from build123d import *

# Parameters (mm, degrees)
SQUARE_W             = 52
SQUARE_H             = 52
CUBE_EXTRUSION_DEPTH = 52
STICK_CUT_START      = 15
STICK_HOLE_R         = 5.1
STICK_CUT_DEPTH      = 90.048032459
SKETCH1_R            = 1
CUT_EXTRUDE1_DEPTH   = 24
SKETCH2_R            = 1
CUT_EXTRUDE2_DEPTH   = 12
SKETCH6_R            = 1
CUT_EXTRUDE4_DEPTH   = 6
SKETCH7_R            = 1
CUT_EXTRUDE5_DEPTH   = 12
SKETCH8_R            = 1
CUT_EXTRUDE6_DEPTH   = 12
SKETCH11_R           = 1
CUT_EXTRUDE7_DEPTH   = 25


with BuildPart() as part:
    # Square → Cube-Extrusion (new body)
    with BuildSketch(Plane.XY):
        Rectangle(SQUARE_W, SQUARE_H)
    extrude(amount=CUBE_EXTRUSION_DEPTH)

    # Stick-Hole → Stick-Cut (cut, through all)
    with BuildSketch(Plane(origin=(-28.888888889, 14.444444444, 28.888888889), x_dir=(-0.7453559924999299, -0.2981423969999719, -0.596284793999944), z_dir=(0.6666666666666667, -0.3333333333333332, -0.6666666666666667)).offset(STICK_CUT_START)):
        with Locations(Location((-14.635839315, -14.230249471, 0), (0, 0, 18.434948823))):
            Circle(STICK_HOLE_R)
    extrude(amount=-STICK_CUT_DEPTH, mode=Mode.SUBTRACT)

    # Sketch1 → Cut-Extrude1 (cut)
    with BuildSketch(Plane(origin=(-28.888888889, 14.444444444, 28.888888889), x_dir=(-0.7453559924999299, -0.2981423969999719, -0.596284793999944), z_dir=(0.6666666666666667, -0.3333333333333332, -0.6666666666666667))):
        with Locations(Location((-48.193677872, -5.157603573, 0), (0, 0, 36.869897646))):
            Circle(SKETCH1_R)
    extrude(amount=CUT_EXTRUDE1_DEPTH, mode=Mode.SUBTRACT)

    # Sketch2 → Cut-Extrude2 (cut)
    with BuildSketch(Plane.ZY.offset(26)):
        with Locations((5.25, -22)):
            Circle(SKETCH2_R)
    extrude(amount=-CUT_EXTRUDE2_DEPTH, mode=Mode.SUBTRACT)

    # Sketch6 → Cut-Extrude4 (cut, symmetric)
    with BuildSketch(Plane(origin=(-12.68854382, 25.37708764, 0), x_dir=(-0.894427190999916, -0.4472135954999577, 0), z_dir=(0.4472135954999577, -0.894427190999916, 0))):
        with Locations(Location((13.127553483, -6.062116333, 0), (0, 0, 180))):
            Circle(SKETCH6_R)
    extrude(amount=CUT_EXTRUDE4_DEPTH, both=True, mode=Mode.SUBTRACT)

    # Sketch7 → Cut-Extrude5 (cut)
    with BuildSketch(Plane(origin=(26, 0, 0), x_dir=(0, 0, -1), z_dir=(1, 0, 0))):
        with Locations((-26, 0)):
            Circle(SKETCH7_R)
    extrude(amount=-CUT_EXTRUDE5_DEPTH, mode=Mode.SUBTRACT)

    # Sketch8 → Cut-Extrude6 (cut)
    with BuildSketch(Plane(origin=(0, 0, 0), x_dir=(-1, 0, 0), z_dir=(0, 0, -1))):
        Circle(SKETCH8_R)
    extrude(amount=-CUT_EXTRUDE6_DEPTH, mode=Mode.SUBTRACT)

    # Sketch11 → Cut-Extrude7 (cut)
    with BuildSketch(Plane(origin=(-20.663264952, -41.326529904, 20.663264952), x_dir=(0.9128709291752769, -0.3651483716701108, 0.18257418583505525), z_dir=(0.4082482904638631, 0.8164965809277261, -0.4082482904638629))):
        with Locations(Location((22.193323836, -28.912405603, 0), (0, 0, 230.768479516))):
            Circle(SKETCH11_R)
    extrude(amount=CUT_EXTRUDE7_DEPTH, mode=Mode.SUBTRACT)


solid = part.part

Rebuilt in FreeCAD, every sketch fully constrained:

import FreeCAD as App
import Part
import Sketcher


def add_polygon(sketch, points):
    """Adds a closed chain of lines whose ends are joined by coincident constraints."""
    first, n = sketch.GeometryCount, len(points)
    for a, b in zip(points, points[1:] + points[:1]):
        sketch.addGeometry(Part.LineSegment(App.Vector(*a, 0), App.Vector(*b, 0)), False)
    for i in range(n):
        sketch.addConstraint(Sketcher.Constraint("Coincident", first + i, 2, first + (i + 1) % n, 1))

doc = App.newDocument("Part")
body = doc.addObject("PartDesign::Body", "Body")

sketch1 = body.newObject("Sketcher::SketchObject", "Sketch")
sketch1.AttachmentSupport = (doc.getObject("XY_Plane"), [""])
sketch1.MapMode = "FlatFace"
add_polygon(sketch1, [(-26, 26), (-26, -26), (26, -26), (26, 26)])
sketch1.addConstraint([
    Sketcher.Constraint("Vertical", 0),
    Sketcher.Constraint("Horizontal", 1),
    Sketcher.Constraint("Vertical", 2),
    Sketcher.Constraint("Horizontal", 3),
    Sketcher.Constraint("Symmetric", 0, 2, 2, 2, -1, 1),
    Sketcher.Constraint("Equal", 3, 0),
    Sketcher.Constraint("DistanceX", 1, 1, 1, 2, 52.0),
])
pad1 = body.newObject("PartDesign::Pad", "Pad")
pad1.Profile = sketch1
pad1.Length = 52

sketch2 = body.newObject("Sketcher::SketchObject", "Sketch001")
sketch2.Placement = App.Placement(App.Vector(-18.888889, 9.444444, 18.888889), App.Rotation(App.Vector(-0.745355992, -0.298142397, -0.596284794), App.Vector(0, 0.894427191, -0.447213595), App.Vector(0.666666667, -0.333333333, -0.666666667), "ZXY"))
sketch2.addGeometry(Part.Circle(App.Vector(-15, -14, 0), App.Vector(0, 0, 1), 5), False)
sketch2.addConstraint([
    Sketcher.Constraint("Diameter", 0, 10.2),
    Sketcher.Constraint("DistanceX", 0, 3, -1, 1, 14.635839),
    Sketcher.Constraint("DistanceY", 0, 3, -1, 1, 14.230249),
])
pocket1 = body.newObject("PartDesign::Pocket", "Pocket")
pocket1.Profile = sketch2
pocket1.Type = "ThroughAll"

sketch3 = body.newObject("Sketcher::SketchObject", "Sketch002")
sketch3.Placement = App.Placement(App.Vector(-28.888889, 14.444444, 28.888889), App.Rotation(App.Vector(-0.745355992, -0.298142397, -0.596284794), App.Vector(0, 0.894427191, -0.447213595), App.Vector(0.666666667, -0.333333333, -0.666666667), "ZXY"))
sketch3.addGeometry(Part.Circle(App.Vector(-48.2, -5.2, 0), App.Vector(0, 0, 1), 1), False)
sketch3.addConstraint([
    Sketcher.Constraint("Diameter", 0, 2.0),
    Sketcher.Constraint("DistanceX", 0, 3, -1, 1, 48.193678),
    Sketcher.Constraint("DistanceY", 0, 3, -1, 1, 5.157604),
])
pocket2 = body.newObject("PartDesign::Pocket", "Pocket001")
pocket2.Profile = sketch3
pocket2.Length = 24
pocket2.Reversed = True

sketch4 = body.newObject("Sketcher::SketchObject", "Sketch003")
sketch4.AttachmentSupport = (doc.getObject("YZ_Plane"), [""])
sketch4.MapMode = "FlatFace"
sketch4.AttachmentOffset = App.Placement(App.Vector(0, 0, -26), App.Rotation())
sketch4.addGeometry(Part.Circle(App.Vector(-22, 5.2, 0), App.Vector(0, 0, 1), 1), False)
sketch4.addConstraint([
    Sketcher.Constraint("Diameter", 0, 2.0),
    Sketcher.Constraint("DistanceX", 0, 3, -1, 1, 22.0),
    Sketcher.Constraint("DistanceY", -1, 1, 0, 3, 5.25),
])
pocket3 = body.newObject("PartDesign::Pocket", "Pocket002")
pocket3.Profile = sketch4
pocket3.Length = 12
pocket3.Reversed = True

sketch5 = body.newObject("Sketcher::SketchObject", "Sketch004")
sketch5.Placement = App.Placement(App.Vector(-12.688544, 25.377088, 0), App.Rotation(App.Vector(-0.894427191, -0.447213595, 0), App.Vector(0, 0, -1), App.Vector(0.447213595, -0.894427191, 0), "ZXY"))
sketch5.addGeometry(Part.Circle(App.Vector(13.1, -6.1, 0), App.Vector(0, 0, 1), 1), False)
sketch5.addConstraint([
    Sketcher.Constraint("Diameter", 0, 2.0),
    Sketcher.Constraint("DistanceX", -1, 1, 0, 3, 13.127553),
    Sketcher.Constraint("DistanceY", 0, 3, -1, 1, 6.062116),
])
pocket4 = body.newObject("PartDesign::Pocket", "Pocket003")
pocket4.Profile = sketch5
pocket4.Length = 12
pocket4.Midplane = True

sketch6 = body.newObject("Sketcher::SketchObject", "Sketch005")
sketch6.AttachmentSupport = (doc.getObject("YZ_Plane"), [""])
sketch6.MapMode = "FlatFace"
sketch6.AttachmentOffset = App.Placement(App.Vector(0, 0, 26), App.Rotation())
sketch6.addGeometry(Part.Circle(App.Vector(0, 26, 0), App.Vector(0, 0, 1), 1), False)
sketch6.addConstraint([
    Sketcher.Constraint("PointOnObject", 0, 3, -2),
    Sketcher.Constraint("Diameter", 0, 2.0),
    Sketcher.Constraint("DistanceY", -1, 1, 0, 3, 26.0),
])
pocket5 = body.newObject("PartDesign::Pocket", "Pocket004")
pocket5.Profile = sketch6
pocket5.Length = 12

sketch7 = body.newObject("Sketcher::SketchObject", "Sketch006")
sketch7.AttachmentSupport = (doc.getObject("XY_Plane"), [""])
sketch7.MapMode = "FlatFace"
sketch7.addGeometry(Part.Circle(App.Vector(0, 0, 0), App.Vector(0, 0, 1), 1), False)
sketch7.addConstraint([
    Sketcher.Constraint("Coincident", 0, 3, -1, 1),
    Sketcher.Constraint("Diameter", 0, 2.0),
])
pocket6 = body.newObject("PartDesign::Pocket", "Pocket005")
pocket6.Profile = sketch7
pocket6.Length = 12
pocket6.Reversed = True

sketch8 = body.newObject("Sketcher::SketchObject", "Sketch007")
sketch8.Placement = App.Placement(App.Vector(-20.663265, -41.32653, 20.663265), App.Rotation(App.Vector(0.912870929, -0.365148372, 0.182574186), App.Vector(0, -0.447213595, -0.894427191), App.Vector(0.40824829, 0.816496581, -0.40824829), "ZXY"))
sketch8.addGeometry(Part.Circle(App.Vector(22.2, -28.9, 0), App.Vector(0, 0, 1), 1), False)
sketch8.addConstraint([
    Sketcher.Constraint("Diameter", 0, 2.0),
    Sketcher.Constraint("DistanceX", -1, 1, 0, 3, 22.193324),
    Sketcher.Constraint("DistanceY", 0, 3, -1, 1, 28.912406),
])
pocket7 = body.newObject("PartDesign::Pocket", "Pocket006")
pocket7.Profile = sketch8
pocket7.Length = 25
pocket7.Reversed = True

doc.recompute()
